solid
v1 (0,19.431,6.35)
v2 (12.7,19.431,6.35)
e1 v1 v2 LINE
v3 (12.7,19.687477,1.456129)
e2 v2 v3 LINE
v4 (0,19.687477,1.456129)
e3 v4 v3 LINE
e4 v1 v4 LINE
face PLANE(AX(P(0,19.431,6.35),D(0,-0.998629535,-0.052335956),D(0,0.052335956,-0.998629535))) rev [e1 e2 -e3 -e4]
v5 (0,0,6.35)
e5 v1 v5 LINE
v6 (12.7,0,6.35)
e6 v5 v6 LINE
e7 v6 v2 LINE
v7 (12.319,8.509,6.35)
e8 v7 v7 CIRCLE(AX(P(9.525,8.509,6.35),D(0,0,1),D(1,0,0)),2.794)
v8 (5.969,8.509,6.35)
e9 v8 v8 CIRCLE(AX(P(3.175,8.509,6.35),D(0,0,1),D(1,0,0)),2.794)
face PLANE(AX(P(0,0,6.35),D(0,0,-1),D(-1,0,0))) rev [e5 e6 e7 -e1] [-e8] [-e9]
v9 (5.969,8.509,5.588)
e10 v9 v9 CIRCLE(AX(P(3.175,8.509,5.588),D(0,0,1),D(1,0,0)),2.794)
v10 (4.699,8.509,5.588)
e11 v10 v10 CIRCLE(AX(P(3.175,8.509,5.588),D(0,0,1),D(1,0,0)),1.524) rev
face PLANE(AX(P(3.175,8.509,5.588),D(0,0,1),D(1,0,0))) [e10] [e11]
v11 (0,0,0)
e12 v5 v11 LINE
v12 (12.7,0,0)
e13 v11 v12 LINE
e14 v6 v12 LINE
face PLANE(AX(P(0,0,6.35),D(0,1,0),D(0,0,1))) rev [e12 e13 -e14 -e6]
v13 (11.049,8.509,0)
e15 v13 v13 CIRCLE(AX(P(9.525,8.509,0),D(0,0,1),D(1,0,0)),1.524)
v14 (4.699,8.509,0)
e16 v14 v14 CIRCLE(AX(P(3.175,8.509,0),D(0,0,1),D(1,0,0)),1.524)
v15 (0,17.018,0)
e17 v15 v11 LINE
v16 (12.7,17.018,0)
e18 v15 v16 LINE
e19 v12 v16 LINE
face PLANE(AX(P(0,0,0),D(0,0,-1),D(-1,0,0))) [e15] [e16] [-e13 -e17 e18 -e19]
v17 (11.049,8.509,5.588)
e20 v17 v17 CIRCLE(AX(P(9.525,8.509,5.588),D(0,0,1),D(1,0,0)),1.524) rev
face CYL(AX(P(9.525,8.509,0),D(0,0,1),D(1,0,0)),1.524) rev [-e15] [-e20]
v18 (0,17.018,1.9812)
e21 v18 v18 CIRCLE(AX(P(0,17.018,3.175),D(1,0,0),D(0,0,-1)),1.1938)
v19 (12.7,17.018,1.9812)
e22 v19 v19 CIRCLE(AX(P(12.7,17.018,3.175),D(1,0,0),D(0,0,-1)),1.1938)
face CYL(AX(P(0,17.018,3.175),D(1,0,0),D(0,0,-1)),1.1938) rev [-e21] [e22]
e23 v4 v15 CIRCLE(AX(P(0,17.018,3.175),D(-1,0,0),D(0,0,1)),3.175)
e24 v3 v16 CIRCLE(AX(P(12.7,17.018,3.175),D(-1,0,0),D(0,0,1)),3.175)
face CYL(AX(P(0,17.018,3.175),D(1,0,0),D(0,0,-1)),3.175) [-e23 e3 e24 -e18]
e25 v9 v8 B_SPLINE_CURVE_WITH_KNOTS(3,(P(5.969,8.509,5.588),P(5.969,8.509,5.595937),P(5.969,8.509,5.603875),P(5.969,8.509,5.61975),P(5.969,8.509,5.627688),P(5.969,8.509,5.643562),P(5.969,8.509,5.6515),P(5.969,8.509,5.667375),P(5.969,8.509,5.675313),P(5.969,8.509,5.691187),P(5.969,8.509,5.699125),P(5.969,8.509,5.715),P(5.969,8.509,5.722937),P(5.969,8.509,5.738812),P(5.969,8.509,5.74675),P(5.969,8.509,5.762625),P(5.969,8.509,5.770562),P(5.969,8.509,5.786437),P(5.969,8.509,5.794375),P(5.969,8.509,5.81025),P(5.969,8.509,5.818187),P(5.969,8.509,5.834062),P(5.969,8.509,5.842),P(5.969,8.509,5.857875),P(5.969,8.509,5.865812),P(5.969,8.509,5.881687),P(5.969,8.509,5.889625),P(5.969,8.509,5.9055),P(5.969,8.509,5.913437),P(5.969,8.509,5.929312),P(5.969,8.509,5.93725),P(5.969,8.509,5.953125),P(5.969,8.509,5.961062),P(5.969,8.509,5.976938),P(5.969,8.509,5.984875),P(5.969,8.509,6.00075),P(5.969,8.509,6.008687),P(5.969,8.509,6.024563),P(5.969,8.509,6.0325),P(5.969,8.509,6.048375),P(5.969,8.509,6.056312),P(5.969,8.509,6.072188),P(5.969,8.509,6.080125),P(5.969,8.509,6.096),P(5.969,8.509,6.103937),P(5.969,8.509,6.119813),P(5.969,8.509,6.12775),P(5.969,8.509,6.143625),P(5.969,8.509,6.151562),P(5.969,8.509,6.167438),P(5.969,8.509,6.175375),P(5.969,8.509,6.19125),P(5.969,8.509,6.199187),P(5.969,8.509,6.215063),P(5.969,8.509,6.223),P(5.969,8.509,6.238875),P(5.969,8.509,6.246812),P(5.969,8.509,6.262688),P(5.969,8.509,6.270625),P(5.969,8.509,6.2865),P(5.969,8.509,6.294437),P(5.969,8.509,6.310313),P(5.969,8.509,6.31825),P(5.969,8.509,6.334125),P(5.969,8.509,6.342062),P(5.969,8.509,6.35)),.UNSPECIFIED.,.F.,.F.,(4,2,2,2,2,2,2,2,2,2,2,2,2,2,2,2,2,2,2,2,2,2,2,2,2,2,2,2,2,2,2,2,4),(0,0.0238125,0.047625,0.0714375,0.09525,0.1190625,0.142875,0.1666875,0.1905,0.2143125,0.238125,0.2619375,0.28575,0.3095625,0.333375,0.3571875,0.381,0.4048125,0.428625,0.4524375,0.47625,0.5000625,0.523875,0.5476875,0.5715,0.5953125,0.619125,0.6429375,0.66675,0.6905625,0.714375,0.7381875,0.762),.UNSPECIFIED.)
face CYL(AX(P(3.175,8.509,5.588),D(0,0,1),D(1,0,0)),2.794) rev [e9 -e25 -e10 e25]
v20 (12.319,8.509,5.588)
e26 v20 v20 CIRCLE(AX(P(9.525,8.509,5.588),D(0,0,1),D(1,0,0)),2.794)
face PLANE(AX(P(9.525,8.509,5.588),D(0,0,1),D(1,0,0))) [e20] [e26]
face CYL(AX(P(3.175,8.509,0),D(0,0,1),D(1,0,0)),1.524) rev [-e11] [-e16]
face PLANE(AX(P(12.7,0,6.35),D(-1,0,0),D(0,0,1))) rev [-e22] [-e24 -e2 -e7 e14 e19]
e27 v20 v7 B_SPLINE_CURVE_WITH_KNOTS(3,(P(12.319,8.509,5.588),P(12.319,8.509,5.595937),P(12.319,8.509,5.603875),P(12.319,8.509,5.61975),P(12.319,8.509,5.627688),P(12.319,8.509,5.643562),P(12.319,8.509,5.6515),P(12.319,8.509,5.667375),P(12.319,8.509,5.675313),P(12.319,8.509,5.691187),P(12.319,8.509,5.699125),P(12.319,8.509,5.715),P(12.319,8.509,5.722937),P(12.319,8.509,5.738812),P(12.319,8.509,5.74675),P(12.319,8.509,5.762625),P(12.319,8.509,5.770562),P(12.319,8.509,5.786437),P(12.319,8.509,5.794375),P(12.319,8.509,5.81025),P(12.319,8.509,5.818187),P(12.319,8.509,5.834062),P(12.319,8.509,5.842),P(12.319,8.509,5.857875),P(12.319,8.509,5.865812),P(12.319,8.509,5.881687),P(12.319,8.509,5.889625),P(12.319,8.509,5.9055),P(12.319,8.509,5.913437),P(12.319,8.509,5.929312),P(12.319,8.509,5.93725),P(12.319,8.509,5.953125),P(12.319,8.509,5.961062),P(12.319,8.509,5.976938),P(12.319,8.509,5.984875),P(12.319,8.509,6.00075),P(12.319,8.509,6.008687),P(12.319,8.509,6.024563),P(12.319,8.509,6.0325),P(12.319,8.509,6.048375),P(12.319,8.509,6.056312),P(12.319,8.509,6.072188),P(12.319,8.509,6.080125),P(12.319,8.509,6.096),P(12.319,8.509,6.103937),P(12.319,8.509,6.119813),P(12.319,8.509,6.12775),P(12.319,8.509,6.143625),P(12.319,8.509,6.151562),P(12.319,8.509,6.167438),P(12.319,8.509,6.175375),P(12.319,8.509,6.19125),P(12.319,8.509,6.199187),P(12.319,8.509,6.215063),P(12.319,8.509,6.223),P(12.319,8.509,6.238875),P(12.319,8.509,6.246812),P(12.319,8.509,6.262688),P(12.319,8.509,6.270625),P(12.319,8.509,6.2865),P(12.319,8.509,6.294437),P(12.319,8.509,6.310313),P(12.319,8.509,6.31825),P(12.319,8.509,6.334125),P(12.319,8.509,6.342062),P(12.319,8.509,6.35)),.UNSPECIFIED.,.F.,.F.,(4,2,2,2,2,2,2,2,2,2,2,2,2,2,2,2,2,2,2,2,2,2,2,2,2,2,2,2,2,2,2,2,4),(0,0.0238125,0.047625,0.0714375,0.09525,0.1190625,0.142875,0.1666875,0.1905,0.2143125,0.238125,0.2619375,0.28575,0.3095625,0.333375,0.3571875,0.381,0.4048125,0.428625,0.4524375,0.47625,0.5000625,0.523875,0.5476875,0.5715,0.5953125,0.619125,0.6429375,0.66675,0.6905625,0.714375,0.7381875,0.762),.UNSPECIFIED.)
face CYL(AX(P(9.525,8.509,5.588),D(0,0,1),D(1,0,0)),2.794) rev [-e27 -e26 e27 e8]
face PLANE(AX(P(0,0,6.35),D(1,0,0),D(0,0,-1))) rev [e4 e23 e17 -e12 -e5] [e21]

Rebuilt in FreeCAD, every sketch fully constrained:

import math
import FreeCAD as App
import Part
import Sketcher

V = App.Vector
Q = App.Units.Quantity


def add_polygon(sketch, points):
    """Adds a closed chain of lines whose ends are joined by coincident constraints."""
    first, n = sketch.GeometryCount, len(points)
    for a, b in zip(points, points[1:] + points[:1]):
        sketch.addGeometry(Part.LineSegment(App.Vector(*a, 0), App.Vector(*b, 0)), False)
    for i in range(n):
        sketch.addConstraint(Sketcher.Constraint("Coincident", first + i, 2, first + (i + 1) % n, 1))

doc = App.newDocument("Part")
params = doc.addObject("Spreadsheet::Sheet", "Params")
for row, (alias, value) in enumerate([
    ("sketch1_width", "0.5 in"),
    ("sketch1_height", "0.795 in"),
    ("pad1_length", "0.25 in"),
    ("sketch2_diameter", "0.12 in"),
    ("sketch3_diameter", "0.22 in"),
    ("pocket2_length", "0.03 in"),
    ("sketch4_diameter", "0.094 in"),
    ("sketch5_radius", "0.125 in"),
    ("sketch5_height", "0.125 in"),
    ("sketch6_width", "0.03 in"),
], start=1):
    params.set(f"A{row}", alias)
    params.set(f"B{row}", "=" + value)
    params.setAlias(f"B{row}", alias)

body = doc.addObject("PartDesign::Body", "Body")

# Sketch on XY plane
sketch1 = body.newObject("Sketcher::SketchObject", "Sketch")
sketch1.AttachmentSupport = (doc.getObject("XY_Plane"), [""])
sketch1.MapMode = "FlatFace"
add_polygon(sketch1, [(0, 20), (0, 0), (13, 0), (13, 20)])  # lines 0-3
sketch1.addConstraint([
    Sketcher.Constraint("Vertical", 0),
    Sketcher.Constraint("Horizontal", 1),
    Sketcher.Constraint("Vertical", 2),
    Sketcher.Constraint("Horizontal", 3),
    Sketcher.Constraint("Coincident", 0, 2, -1, 1),
    Sketcher.Constraint("DistanceX", 1, 1, 1, 2, Q("0.5 in")),
    Sketcher.Constraint("DistanceY", 0, 2, 0, 1, Q("0.795 in")),
])
sketch1.setExpression("Constraints[9]", "Params.sketch1_width")
sketch1.setExpression("Constraints[10]", "Params.sketch1_height")
pad1 = body.newObject("PartDesign::Pad", "Pad")
pad1.Profile = sketch1
pad1.setExpression("Length", "Params.pad1_length")

# Sketch on XY plane
sketch2 = body.newObject("Sketcher::SketchObject", "Sketch001")
sketch2.AttachmentSupport = (doc.getObject("XY_Plane"), [""])
sketch2.MapMode = "FlatFace"
sketch2.AttachmentOffset = App.Placement(V(0, 0, 0.25 * 25.4), App.Rotation())
sketch2.addGeometry([
    Part.Circle(V(3.2, 8.5, 0), V(0, 0, 1), 1.5),
    Part.Circle(V(9.5, 8.5, 0), V(0, 0, 1), 1.5),
], False)
sketch2.addConstraint([
    Sketcher.Constraint("Equal", 0, 1),
    Sketcher.Constraint("Horizontal", 0, 3, 1, 3),
    Sketcher.Constraint("Diameter", 0, Q("0.12 in")),
    Sketcher.Constraint("DistanceX", 0, 3, 1, 3, Q("0.25 in")),
    Sketcher.Constraint("DistanceX", -1, 1, 0, 3, Q("0.125 in")),
    Sketcher.Constraint("DistanceY", -1, 1, 0, 3, Q("0.335 in")),
])
sketch2.setExpression("Constraints[2]", "Params.sketch2_diameter")
pocket1 = body.newObject("PartDesign::Pocket", "Pocket")
pocket1.Profile = sketch2
pocket1.Type = "ThroughAll"

# Sketch on XY plane
sketch3 = body.newObject("Sketcher::SketchObject", "Sketch002")
sketch3.AttachmentSupport = (doc.getObject("XY_Plane"), [""])
sketch3.MapMode = "FlatFace"
sketch3.AttachmentOffset = App.Placement(V(0, 0, 0.25 * 25.4), App.Rotation())
sketch3.addGeometry([
    Part.Circle(V(3.2, 8.5, 0), V(0, 0, 1), 2.8),
    Part.Circle(V(9.5, 8.5, 0), V(0, 0, 1), 2.8),
], False)
sketch3.addConstraint([
    Sketcher.Constraint("Equal", 0, 1),
    Sketcher.Constraint("Horizontal", 0, 3, 1, 3),
    Sketcher.Constraint("Diameter", 0, Q("0.22 in")),
    Sketcher.Constraint("DistanceX", 0, 3, 1, 3, Q("0.25 in")),
    Sketcher.Constraint("DistanceX", -1, 1, 0, 3, Q("0.125 in")),
    Sketcher.Constraint("DistanceY", -1, 1, 0, 3, Q("0.335 in")),
])
sketch3.setExpression("Constraints[2]", "Params.sketch3_diameter")
pocket2 = body.newObject("PartDesign::Pocket", "Pocket001")
pocket2.Profile = sketch3
pocket2.setExpression("Length", "Params.pocket2_length")

# Sketch on YZ plane
sketch4 = body.newObject("Sketcher::SketchObject", "Sketch003")
sketch4.AttachmentSupport = (doc.getObject("YZ_Plane"), [""])
sketch4.MapMode = "FlatFace"
sketch4.AttachmentOffset = App.Placement(V(0, 0, 0.5 * 25.4), App.Rotation())
sketch4.addGeometry(Part.Circle(V(17, 3.2, 0), V(0, 0, 1), 1.2), False)
sketch4.addConstraint([
    Sketcher.Constraint("Diameter", 0, Q("0.094 in")),
    Sketcher.Constraint("DistanceX", -1, 1, 0, 3, Q("0.67 in")),
    Sketcher.Constraint("DistanceY", -1, 1, 0, 3, Q("0.125 in")),
])
sketch4.setExpression("Constraints[0]", "Params.sketch4_diameter")
pocket3 = body.newObject("PartDesign::Pocket", "Pocket002")
pocket3.Profile = sketch4
pocket3.Type = "ThroughAll"

# Sketch on YZ plane
sketch5 = body.newObject("Sketcher::SketchObject", "Sketch004")
sketch5.AttachmentSupport = (doc.getObject("YZ_Plane"), [""])
sketch5.MapMode = "FlatFace"
sketch5.AttachmentOffset = App.Placement(V(0, 0, 0.5 * 25.4), App.Rotation())
sketch5.addGeometry([
    Part.LineSegment(V(20.2, 6.3, 0), V(20.2, 3.2, 0)),  # 0
    Part.ArcOfCircle(Part.Circle(V(17, 3.2, 0), V(0, 0, 1), 3.2), math.radians(-90), math.radians(0)),  # 1
    Part.LineSegment(V(17, 0, 0), V(13.9, 0, 0)),  # 2
    Part.LineSegment(V(13.9, 0, 0), V(13.9, -3.9, 0)),  # 3
    Part.LineSegment(V(13.9, -3.9, 0), V(24.5, -3.9, 0)),  # 4
    Part.LineSegment(V(24.5, -3.9, 0), V(24.5, 6.3, 0)),  # 5
    Part.LineSegment(V(24.5, 6.3, 0), V(20.2, 6.3, 0)),  # 6
], False)
sketch5.addConstraint([
    Sketcher.Constraint("Tangent", 0, 2, 1, 2),
    Sketcher.Constraint("Tangent", 1, 1, 2, 1),
    Sketcher.Constraint("Coincident", 2, 2, 3, 1),
    Sketcher.Constraint("Coincident", 3, 2, 4, 1),
    Sketcher.Constraint("Coincident", 4, 2, 5, 1),
    Sketcher.Constraint("Coincident", 5, 2, 6, 1),
    Sketcher.Constraint("Coincident", 6, 2, 0, 1),
    Sketcher.Constraint("Vertical", 0),
    Sketcher.Constraint("Horizontal", 2),
    Sketcher.Constraint("Vertical", 3),
    Sketcher.Constraint("Horizontal", 4),
    Sketcher.Constraint("Vertical", 5),
    Sketcher.Constraint("Horizontal", 6),
    Sketcher.Constraint("PointOnObject", 1, 1, -1),
    Sketcher.Constraint("Radius", 1, Q("0.125 in")),
    Sketcher.Constraint("DistanceY", 0, 2, 0, 1, Q("0.125 in")),
    Sketcher.Constraint("DistanceX", -1, 1, 1, 3, Q("0.67 in")),
    Sketcher.Constraint("DistanceX", 2, 2, 2, 1, 3.081129),
    Sketcher.Constraint("DistanceX", 4, 1, 4, 2, 10.558235),
    Sketcher.Constraint("DistanceY", 3, 2, 3, 1, 3.924146),
])
sketch5.setExpression("Constraints[14]", "Params.sketch5_radius")
sketch5.setExpression("Constraints[15]", "Params.sketch5_height")
pocket4 = body.newObject("PartDesign::Pocket", "Pocket003")
pocket4.Profile = sketch5
pocket4.Type = "ThroughAll"

# Sketch on YZ plane
sketch6 = body.newObject("Sketcher::SketchObject", "Sketch005")
sketch6.AttachmentSupport = (doc.getObject("YZ_Plane"), [""])
sketch6.MapMode = "FlatFace"
sketch6.AttachmentOffset = App.Placement(V(0, 0, 0.5 * 25.4), App.Rotation())
add_polygon(sketch6, [(19.4, 6.3), (20.2, -8.2), (20.2, 6.3)])  # lines 0-2
sketch6.addConstraint([
    Sketcher.Constraint("Vertical", 1),
    Sketcher.Constraint("Horizontal", 2),
    Sketcher.Constraint("Angle", 0, Q("-87 deg")),
    Sketcher.Constraint("DistanceX", 2, 2, 2, 1, Q("0.03 in")),
    Sketcher.Constraint("DistanceY", -1, 1, 1, 2, Q("0.25 in")),
    Sketcher.Constraint("DistanceX", -1, 1, 0, 2, Q("0.795 in")),
])
sketch6.setExpression("Constraints[6]", "Params.sketch6_width")
pocket5 = body.newObject("PartDesign::Pocket", "Pocket004")
pocket5.Profile = sketch6
pocket5.Type = "ThroughAll"

doc.recompute()
